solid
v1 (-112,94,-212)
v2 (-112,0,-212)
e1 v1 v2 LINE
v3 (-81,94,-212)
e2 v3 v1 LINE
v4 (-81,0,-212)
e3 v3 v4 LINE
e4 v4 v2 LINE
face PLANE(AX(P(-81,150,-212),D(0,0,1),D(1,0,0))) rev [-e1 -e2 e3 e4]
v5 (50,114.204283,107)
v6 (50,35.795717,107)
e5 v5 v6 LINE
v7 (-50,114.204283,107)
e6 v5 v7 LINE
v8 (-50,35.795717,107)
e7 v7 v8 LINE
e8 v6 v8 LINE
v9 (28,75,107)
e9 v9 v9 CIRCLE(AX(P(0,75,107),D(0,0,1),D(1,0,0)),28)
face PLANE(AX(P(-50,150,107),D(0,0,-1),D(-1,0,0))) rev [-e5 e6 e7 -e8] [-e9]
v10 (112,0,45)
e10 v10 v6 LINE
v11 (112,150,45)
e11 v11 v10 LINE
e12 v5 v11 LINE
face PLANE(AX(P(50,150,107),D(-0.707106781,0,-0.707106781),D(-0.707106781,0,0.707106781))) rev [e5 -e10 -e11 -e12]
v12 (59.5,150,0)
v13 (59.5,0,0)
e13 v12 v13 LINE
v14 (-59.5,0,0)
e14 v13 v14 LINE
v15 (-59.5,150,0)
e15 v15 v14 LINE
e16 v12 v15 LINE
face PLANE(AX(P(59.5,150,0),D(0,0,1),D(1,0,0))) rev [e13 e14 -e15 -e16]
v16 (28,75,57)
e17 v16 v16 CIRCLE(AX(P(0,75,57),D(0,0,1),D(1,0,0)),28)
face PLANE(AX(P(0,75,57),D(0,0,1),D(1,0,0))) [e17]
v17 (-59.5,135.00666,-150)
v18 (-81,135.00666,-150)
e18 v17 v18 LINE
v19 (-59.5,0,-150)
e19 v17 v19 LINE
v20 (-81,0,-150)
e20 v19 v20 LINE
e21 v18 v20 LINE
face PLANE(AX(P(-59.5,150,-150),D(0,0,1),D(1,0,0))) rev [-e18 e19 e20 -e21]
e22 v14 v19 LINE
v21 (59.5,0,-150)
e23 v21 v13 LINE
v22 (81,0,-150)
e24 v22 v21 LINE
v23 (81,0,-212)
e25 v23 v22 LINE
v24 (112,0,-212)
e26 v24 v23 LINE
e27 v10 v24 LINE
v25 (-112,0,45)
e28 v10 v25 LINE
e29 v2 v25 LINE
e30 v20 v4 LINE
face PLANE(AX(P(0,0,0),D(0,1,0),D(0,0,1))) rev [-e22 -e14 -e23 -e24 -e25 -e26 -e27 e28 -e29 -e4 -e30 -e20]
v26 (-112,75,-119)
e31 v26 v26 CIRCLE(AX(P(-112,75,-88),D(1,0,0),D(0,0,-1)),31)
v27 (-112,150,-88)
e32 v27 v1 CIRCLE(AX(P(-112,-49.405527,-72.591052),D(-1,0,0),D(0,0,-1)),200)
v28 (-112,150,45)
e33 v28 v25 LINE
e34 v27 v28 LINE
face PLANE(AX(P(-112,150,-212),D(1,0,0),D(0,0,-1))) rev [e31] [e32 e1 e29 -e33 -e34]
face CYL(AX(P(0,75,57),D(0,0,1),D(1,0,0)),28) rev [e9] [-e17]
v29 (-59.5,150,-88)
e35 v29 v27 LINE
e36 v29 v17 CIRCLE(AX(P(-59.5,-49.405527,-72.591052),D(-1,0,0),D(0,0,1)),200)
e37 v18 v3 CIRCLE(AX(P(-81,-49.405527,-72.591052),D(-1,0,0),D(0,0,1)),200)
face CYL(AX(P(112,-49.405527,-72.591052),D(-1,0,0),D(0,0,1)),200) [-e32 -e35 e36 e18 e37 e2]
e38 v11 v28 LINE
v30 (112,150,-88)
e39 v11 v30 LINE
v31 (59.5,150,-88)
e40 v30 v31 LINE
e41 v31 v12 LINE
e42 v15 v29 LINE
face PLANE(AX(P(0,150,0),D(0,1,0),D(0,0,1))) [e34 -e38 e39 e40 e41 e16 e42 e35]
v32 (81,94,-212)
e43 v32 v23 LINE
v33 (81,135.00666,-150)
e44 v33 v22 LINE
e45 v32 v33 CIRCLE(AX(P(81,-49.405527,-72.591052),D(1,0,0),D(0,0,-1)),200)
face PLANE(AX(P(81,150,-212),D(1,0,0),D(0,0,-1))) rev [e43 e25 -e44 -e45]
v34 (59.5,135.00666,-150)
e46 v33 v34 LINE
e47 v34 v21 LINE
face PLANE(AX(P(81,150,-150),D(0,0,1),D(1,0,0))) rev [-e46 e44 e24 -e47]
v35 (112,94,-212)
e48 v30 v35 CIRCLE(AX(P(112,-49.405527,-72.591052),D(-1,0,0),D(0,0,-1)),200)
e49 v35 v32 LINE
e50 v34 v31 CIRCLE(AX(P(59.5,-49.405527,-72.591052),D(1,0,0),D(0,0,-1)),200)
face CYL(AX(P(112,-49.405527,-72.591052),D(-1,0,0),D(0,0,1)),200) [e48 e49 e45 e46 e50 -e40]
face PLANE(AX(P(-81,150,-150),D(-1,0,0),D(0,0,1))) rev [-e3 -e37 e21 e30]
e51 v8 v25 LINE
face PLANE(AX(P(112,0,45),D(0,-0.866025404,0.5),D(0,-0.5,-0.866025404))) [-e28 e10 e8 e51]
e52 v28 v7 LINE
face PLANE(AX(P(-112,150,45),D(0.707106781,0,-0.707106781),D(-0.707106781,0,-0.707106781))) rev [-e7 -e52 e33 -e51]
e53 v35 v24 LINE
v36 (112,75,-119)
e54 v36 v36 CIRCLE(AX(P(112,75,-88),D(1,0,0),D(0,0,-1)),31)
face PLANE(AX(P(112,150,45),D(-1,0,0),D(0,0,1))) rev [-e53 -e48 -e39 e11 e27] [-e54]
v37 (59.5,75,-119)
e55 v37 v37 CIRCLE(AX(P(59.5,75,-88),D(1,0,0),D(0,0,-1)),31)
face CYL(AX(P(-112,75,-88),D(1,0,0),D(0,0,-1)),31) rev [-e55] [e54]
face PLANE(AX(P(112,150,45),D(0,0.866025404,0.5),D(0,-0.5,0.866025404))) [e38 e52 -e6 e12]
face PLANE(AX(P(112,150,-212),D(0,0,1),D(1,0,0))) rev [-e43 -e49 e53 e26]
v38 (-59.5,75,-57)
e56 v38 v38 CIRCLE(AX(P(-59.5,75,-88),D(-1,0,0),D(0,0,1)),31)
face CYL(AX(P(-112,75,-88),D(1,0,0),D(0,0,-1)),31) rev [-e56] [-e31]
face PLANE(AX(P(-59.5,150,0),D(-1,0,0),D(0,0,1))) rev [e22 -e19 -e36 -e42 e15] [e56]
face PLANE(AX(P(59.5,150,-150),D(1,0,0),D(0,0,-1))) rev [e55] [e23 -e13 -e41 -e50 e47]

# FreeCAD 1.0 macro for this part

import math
import FreeCAD as App
import Part
import Sketcher
from FreeCAD import Vector
Q = App.Units.Quantity

doc = App.newDocument("Part")
body = doc.addObject("PartDesign::Body", "Body")

# Sketch on XZ plane
sketch1 = body.newObject("Sketcher::SketchObject", "Sketch")
sketch1.AttachmentSupport = (doc.getObject("XZ_Plane"), [""])
sketch1.MapMode = "FlatFace"
sketch1.addGeometry([
    Part.LineSegment(Vector(60, 0, 0), Vector(-60, 0, 0)),  # 0
    Part.LineSegment(Vector(-60, 0, 0), Vector(-60, -150, 0)),  # 1
    Part.LineSegment(Vector(-60, -150, 0), Vector(-81, -150, 0)),  # 2
    Part.LineSegment(Vector(-81, -150, 0), Vector(-81, -212, 0)),  # 3
    Part.LineSegment(Vector(-81, -212, 0), Vector(-112, -212, 0)),  # 4
    Part.LineSegment(Vector(-112, -212, 0), Vector(-112, 45, 0)),  # 5
    Part.LineSegment(Vector(-112, 45, 0), Vector(-50, 107, 0)),  # 6
    Part.LineSegment(Vector(-50, 107, 0), Vector(50, 107, 0)),  # 7
    Part.LineSegment(Vector(50, 107, 0), Vector(112, 45, 0)),  # 8
    Part.LineSegment(Vector(112, 45, 0), Vector(112, -212, 0)),  # 9
    Part.LineSegment(Vector(112, -212, 0), Vector(81, -212, 0)),  # 10
    Part.LineSegment(Vector(81, -212, 0), Vector(81, -150, 0)),  # 11
    Part.LineSegment(Vector(81, -150, 0), Vector(60, -150, 0)),  # 12
    Part.LineSegment(Vector(60, -150, 0), Vector(60, 0, 0)),  # 13
], False)
sketch1.addConstraint([
    Sketcher.Constraint("Coincident", 0, 2, 1, 1),
    Sketcher.Constraint("Coincident", 1, 2, 2, 1),
    Sketcher.Constraint("Coincident", 2, 2, 3, 1),
    Sketcher.Constraint("Coincident", 3, 2, 4, 1),
    Sketcher.Constraint("Coincident", 4, 2, 5, 1),
    Sketcher.Constraint("Coincident", 5, 2, 6, 1),
    Sketcher.Constraint("Coincident", 6, 2, 7, 1),
    Sketcher.Constraint("Coincident", 7, 2, 8, 1),
    Sketcher.Constraint("Coincident", 8, 2, 9, 1),
    Sketcher.Constraint("Coincident", 9, 2, 10, 1),
    Sketcher.Constraint("Coincident", 10, 2, 11, 1),
    Sketcher.Constraint("Coincident", 11, 2, 12, 1),
    Sketcher.Constraint("Coincident", 12, 2, 13, 1),
    Sketcher.Constraint("Coincident", 13, 2, 0, 1),
    Sketcher.Constraint("Horizontal", 0),
    Sketcher.Constraint("Vertical", 1),
    Sketcher.Constraint("Horizontal", 2),
    Sketcher.Constraint("Vertical", 3),
    Sketcher.Constraint("Horizontal", 4),
    Sketcher.Constraint("Vertical", 5),
    Sketcher.Constraint("Horizontal", 7),
    Sketcher.Constraint("Vertical", 9),
    Sketcher.Constraint("Horizontal", 10),
    Sketcher.Constraint("Vertical", 11),
    Sketcher.Constraint("Horizontal", 12),
    Sketcher.Constraint("Vertical", 13),
    Sketcher.Constraint("Symmetric", 0, 2, 13, 2, -1, 1),
    Sketcher.Constraint("Symmetric", 5, 2, 8, 2, -2),
    Sketcher.Constraint("Symmetric", 3, 2, 10, 2, -2),
    Sketcher.Constraint("Perpendicular", 6, 8),
    Sketcher.Constraint("Horizontal", 2, 2, 11, 2),
    Sketcher.Constraint("Equal", 6, 8),
    Sketcher.Constraint("DistanceX", 0, 2, 0, 1, Q("119 mm")),
    Sketcher.Constraint("DistanceX", 4, 2, 4, 1, Q("31 mm")),
    Sketcher.Constraint("DistanceX", 7, 1, 7, 2, Q("100 mm")),
    Sketcher.Constraint("DistanceY", 1, 2, 1, 1, Q("150 mm")),
    Sketcher.Constraint("DistanceY", 3, 2, 3, 1, Q("62 mm")),
    Sketcher.Constraint("DistanceY", 5, 1, 5, 2, Q("257 mm")),
    Sketcher.Constraint("DistanceX", 2, 2, 2, 1, Q("21.5 mm")),
])
pad1 = body.newObject("PartDesign::Pad", "Pad")
pad1.Profile = sketch1
pad1.Length = 150
pad1.Reversed = True

# Sketch on YZ plane
sketch2 = body.newObject("Sketcher::SketchObject", "Sketch001")
sketch2.AttachmentSupport = (doc.getObject("YZ_Plane"), [""])
sketch2.MapMode = "FlatFace"
sketch2.addGeometry([
    Part.LineSegment(Vector(150, 107, 0), Vector(114, 107, 0)),  # 0
    Part.LineSegment(Vector(114, 107, 0), Vector(150, 45, 0)),  # 1
    Part.LineSegment(Vector(150, 45, 0), Vector(150, 107, 0)),  # 2
    Part.LineSegment(Vector(0, 107, 0), Vector(0, 45, 0)),  # 3
    Part.LineSegment(Vector(0, 45, 0), Vector(36, 107, 0)),  # 4
    Part.LineSegment(Vector(36, 107, 0), Vector(0, 107, 0)),  # 5
], False)
sketch2.addConstraint([
    Sketcher.Constraint("Coincident", 0, 2, 1, 1),
    Sketcher.Constraint("Coincident", 1, 2, 2, 1),
    Sketcher.Constraint("Coincident", 2, 2, 0, 1),
    Sketcher.Constraint("Coincident", 3, 2, 4, 1),
    Sketcher.Constraint("Coincident", 4, 2, 5, 1),
    Sketcher.Constraint("Coincident", 5, 2, 3, 1),
    Sketcher.Constraint("Horizontal", 0),
    Sketcher.Constraint("Vertical", 2),
    Sketcher.Constraint("Vertical", 3),
    Sketcher.Constraint("Horizontal", 5),
    Sketcher.Constraint("PointOnObject", 3, 2, -2),
    Sketcher.Constraint("Horizontal", 1, 2, 3, 2),
    Sketcher.Constraint("Horizontal", 2, 2, 4, 2),
    Sketcher.Constraint("Equal", 0, 5),
    Sketcher.Constraint("DistanceY", 2, 1, 2, 2, Q("62 mm")),
    Sketcher.Constraint("Angle", 1, Q("-60 deg")),
    Sketcher.Constraint("DistanceY", -1, 1, 0, 2, Q("107 mm")),
    Sketcher.Constraint("DistanceX", -1, 1, 1, 2, Q("150 mm")),
])
pocket1 = body.newObject("PartDesign::Pocket", "Pocket")
pocket1.Profile = sketch2
pocket1.Type = "ThroughAll"
pocket1.Midplane = True

# Sketch on YZ plane
sketch3 = body.newObject("Sketcher::SketchObject", "Sketch002")
sketch3.AttachmentSupport = (doc.getObject("YZ_Plane"), [""])
sketch3.MapMode = "FlatFace"
sketch3.addGeometry([
    Part.LineSegment(Vector(150, -212, 0), Vector(150, -88, 0)),
    Part.ArcOfCircle(Part.Circle(Vector(-49, -73, 0), Vector(0, 0, 1), 200), math.radians(-44), math.radians(-4)),
    Part.LineSegment(Vector(94, -212, 0), Vector(150, -212, 0)),
], False)
sketch3.addConstraint([
    Sketcher.Constraint("Coincident", 0, 2, 1, 2),
    Sketcher.Constraint("Coincident", 1, 1, 2, 1),
    Sketcher.Constraint("Coincident", 2, 2, 0, 1),
    Sketcher.Constraint("Vertical", 0),
    Sketcher.Constraint("Horizontal", 2),
    Sketcher.Constraint("Radius", 1, Q("200 mm")),
    Sketcher.Constraint("DistanceX", 2, 1, 2, 2, Q("56 mm")),
    Sketcher.Constraint("DistanceY", 0, 1, 0, 2, Q("124 mm")),
    Sketcher.Constraint("DistanceX", -1, 1, 0, 2, Q("150 mm")),
    Sketcher.Constraint("DistanceY", 0, 2, -1, 1, Q("88 mm")),
])
pocket2 = body.newObject("PartDesign::Pocket", "Pocket001")
pocket2.Profile = sketch3
pocket2.Type = "ThroughAll"
pocket2.Midplane = True

# Sketch on XY plane
sketch4 = body.newObject("Sketcher::SketchObject", "Sketch003")
sketch4.AttachmentSupport = (doc.getObject("XY_Plane"), [""])
sketch4.MapMode = "FlatFace"
sketch4.AttachmentOffset = App.Placement(Vector(0, 0, 107), App.Rotation())
sketch4.addGeometry(Part.Circle(Vector(0, 75, 0), Vector(0, 0, 1), 28), False)
sketch4.addConstraint([
    Sketcher.Constraint("PointOnObject", 0, 3, -2),
    Sketcher.Constraint("Diameter", 0, Q("56 mm")),
    Sketcher.Constraint("DistanceY", -1, 1, 0, 3, Q("75 mm")),
])
pocket3 = body.newObject("PartDesign::Pocket", "Pocket002")
pocket3.Profile = sketch4
pocket3.Length = 50

# Sketch on YZ plane
sketch5 = body.newObject("Sketcher::SketchObject", "Sketch004")
sketch5.AttachmentSupport = (doc.getObject("YZ_Plane"), [""])
sketch5.MapMode = "FlatFace"
sketch5.AttachmentOffset = App.Placement(Vector(0, 0, 112), App.Rotation())
sketch5.addGeometry(Part.Circle(Vector(75, -88, 0), Vector(0, 0, 1), 31), False)
sketch5.addConstraint([
    Sketcher.Constraint("Diameter", 0, Q("62 mm")),
    Sketcher.Constraint("DistanceX", -1, 1, 0, 3, Q("75 mm")),
    Sketcher.Constraint("DistanceY", 0, 3, -1, 1, Q("88 mm")),
])
pocket4 = body.newObject("PartDesign::Pocket", "Pocket003")
pocket4.Profile = sketch5
pocket4.Length = 224

doc.recompute()
